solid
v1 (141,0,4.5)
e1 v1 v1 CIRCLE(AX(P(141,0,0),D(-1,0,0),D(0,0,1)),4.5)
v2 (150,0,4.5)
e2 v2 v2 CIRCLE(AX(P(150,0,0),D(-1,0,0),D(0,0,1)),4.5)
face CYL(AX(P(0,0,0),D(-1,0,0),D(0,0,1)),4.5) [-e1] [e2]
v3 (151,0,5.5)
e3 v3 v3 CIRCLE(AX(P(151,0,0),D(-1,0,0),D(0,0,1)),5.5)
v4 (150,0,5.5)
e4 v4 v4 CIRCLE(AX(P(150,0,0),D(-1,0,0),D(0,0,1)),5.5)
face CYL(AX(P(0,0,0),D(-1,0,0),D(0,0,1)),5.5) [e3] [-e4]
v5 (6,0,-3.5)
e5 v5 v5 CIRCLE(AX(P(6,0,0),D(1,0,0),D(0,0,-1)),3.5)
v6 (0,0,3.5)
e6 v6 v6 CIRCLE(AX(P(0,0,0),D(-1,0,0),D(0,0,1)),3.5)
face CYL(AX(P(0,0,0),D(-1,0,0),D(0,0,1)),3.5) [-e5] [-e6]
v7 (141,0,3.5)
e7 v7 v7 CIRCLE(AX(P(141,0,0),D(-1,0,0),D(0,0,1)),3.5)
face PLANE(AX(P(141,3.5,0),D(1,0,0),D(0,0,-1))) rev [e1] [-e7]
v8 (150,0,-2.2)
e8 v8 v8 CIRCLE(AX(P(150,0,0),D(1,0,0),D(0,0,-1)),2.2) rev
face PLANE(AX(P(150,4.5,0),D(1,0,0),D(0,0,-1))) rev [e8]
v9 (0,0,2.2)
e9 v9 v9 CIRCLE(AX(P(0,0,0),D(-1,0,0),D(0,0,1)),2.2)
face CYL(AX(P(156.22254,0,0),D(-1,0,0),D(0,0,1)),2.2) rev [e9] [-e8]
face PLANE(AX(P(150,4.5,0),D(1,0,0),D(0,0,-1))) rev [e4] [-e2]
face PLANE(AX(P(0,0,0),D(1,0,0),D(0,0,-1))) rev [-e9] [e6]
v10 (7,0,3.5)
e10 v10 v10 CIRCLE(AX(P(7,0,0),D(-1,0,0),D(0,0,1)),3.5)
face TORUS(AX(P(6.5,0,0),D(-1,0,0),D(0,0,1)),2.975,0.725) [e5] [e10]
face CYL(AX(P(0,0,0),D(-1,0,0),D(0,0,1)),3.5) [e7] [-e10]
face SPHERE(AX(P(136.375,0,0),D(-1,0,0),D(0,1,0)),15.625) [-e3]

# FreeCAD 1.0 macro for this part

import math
import FreeCAD as App
import Part
import Sketcher
from FreeCAD import Vector
Q = App.Units.Quantity

doc = App.newDocument("Part")
body = doc.addObject("PartDesign::Body", "Body")

# Sketch on XY plane
sketch1 = body.newObject("Sketcher::SketchObject", "Sketch")
sketch1.AttachmentSupport = (doc.getObject("XY_Plane"), [""])
sketch1.MapMode = "FlatFace"
sketch1.addGeometry(Part.LineSegment(Vector(0, 0, 0), Vector(152, 0, 0)), False)
sketch1.addGeometry(Part.ArcOfCircle(Part.Circle(Vector(136.4, 0, 0), Vector(0, 0, 1), 15.6), math.radians(0), math.radians(21)), False)
sketch1.addGeometry(Part.LineSegment(Vector(151, 5.5, 0), Vector(150, 5.5, 0)), False)
sketch1.addGeometry(Part.LineSegment(Vector(150, 5.5, 0), Vector(150, 4.5, 0)), False)
sketch1.addGeometry(Part.LineSegment(Vector(150, 4.5, 0), Vector(141, 4.5, 0)), False)
sketch1.addGeometry(Part.LineSegment(Vector(141, 4.5, 0), Vector(141, 3.5, 0)), False)
sketch1.addGeometry(Part.LineSegment(Vector(141, 3.5, 0), Vector(0, 3.5, 0)), False)
sketch1.addGeometry(Part.LineSegment(Vector(0, 3.5, 0), Vector(0, 0, 0)), False)
sketch1.addConstraint(Sketcher.Constraint("Coincident", 0, 2, 1, 1))
sketch1.addConstraint(Sketcher.Constraint("Coincident", 1, 2, 2, 1))
sketch1.addConstraint(Sketcher.Constraint("Coincident", 2, 2, 3, 1))
sketch1.addConstraint(Sketcher.Constraint("Coincident", 3, 2, 4, 1))
sketch1.addConstraint(Sketcher.Constraint("Coincident", 4, 2, 5, 1))
sketch1.addConstraint(Sketcher.Constraint("Coincident", 5, 2, 6, 1))
sketch1.addConstraint(Sketcher.Constraint("Coincident", 6, 2, 7, 1))
sketch1.addConstraint(Sketcher.Constraint("Coincident", 7, 2, 0, 1))
sketch1.addConstraint(Sketcher.Constraint("Horizontal", 0))
sketch1.addConstraint(Sketcher.Constraint("Horizontal", 2))
sketch1.addConstraint(Sketcher.Constraint("Vertical", 3))
sketch1.addConstraint(Sketcher.Constraint("Horizontal", 4))
sketch1.addConstraint(Sketcher.Constraint("Vertical", 5))
sketch1.addConstraint(Sketcher.Constraint("Horizontal", 6))
sketch1.addConstraint(Sketcher.Constraint("Vertical", 7))
sketch1.addConstraint(Sketcher.Constraint("Coincident", 7, 2, -1, 1))
sketch1.addConstraint(Sketcher.Constraint("PointOnObject", 1, 3, -1))
sketch1.addConstraint(Sketcher.Constraint("Equal", 2, 3))
sketch1.addConstraint(Sketcher.Constraint("Equal", 3, 5))
sketch1.addConstraint(Sketcher.Constraint("DistanceX", 0, 1, 0, 2, Q("152 mm")))
sketch1.addConstraint(Sketcher.Constraint("DistanceX", 2, 2, 2, 1, Q("1 mm")))
sketch1.addConstraint(Sketcher.Constraint("DistanceX", 4, 2, 4, 1, Q("9 mm")))
sketch1.addConstraint(Sketcher.Constraint("DistanceX", 6, 2, 6, 1, Q("141 mm")))
sketch1.addConstraint(Sketcher.Constraint("DistanceY", 7, 2, 7, 1, Q("3.5 mm")))
revolution = body.newObject("PartDesign::Revolution", "Revolution")
revolution.Profile = sketch1
revolution.ReferenceAxis = (sketch1, ["H_Axis"])
revolution.Angle = 360

# Sketch on XY plane
sketch2 = body.newObject("Sketcher::SketchObject", "Sketch001")
sketch2.AttachmentSupport = (doc.getObject("XY_Plane"), [""])
sketch2.MapMode = "FlatFace"
sketch2.addGeometry(Part.LineSegment(Vector(6, 0, 0), Vector(7, 0, 0)), False)
sketch2.addGeometry(Part.LineSegment(Vector(7, 0, 0), Vector(7, 3.5, 0)), False)
sketch2.addGeometry(Part.ArcOfCircle(Part.Circle(Vector(6.5, 3, 0), Vector(0, 0, 1), 0.7), math.radians(46), math.radians(134)), False)
sketch2.addGeometry(Part.LineSegment(Vector(6, 3.5, 0), Vector(6, 0, 0)), False)
sketch2.addConstraint(Sketcher.Constraint("Coincident", 0, 2, 1, 1))
sketch2.addConstraint(Sketcher.Constraint("Coincident", 1, 2, 2, 1))
sketch2.addConstraint(Sketcher.Constraint("Coincident", 2, 2, 3, 1))
sketch2.addConstraint(Sketcher.Constraint("Coincident", 3, 2, 0, 1))
sketch2.addConstraint(Sketcher.Constraint("Horizontal", 0))
sketch2.addConstraint(Sketcher.Constraint("Vertical", 1))
sketch2.addConstraint(Sketcher.Constraint("Vertical", 3))
sketch2.addConstraint(Sketcher.Constraint("PointOnObject", 0, 2, -1))
sketch2.addConstraint(Sketcher.Constraint("Horizontal", 1, 2, 2, 2))
sketch2.addConstraint(Sketcher.Constraint("DistanceX", 0, 1, 0, 2, Q("1 mm")))
sketch2.addConstraint(Sketcher.Constraint("DistanceY", 1, 1, 1, 2, Q("3.5 mm")))
sketch2.addConstraint(Sketcher.Constraint("DistanceX", -1, 1, 0, 2, Q("7 mm")))
sketch2.addConstraint(Sketcher.Constraint("Radius", 2, Q("0.725 mm")))
revolution2 = body.newObject("PartDesign::Revolution", "Revolution001")
revolution2.Profile = sketch2
revolution2.ReferenceAxis = (sketch2, ["H_Axis"])
revolution2.Angle = 360

# Sketch on YZ plane
sketch3 = body.newObject("Sketcher::SketchObject", "Sketch002")
sketch3.AttachmentSupport = (doc.getObject("YZ_Plane"), [""])
sketch3.MapMode = "FlatFace"
sketch3.addGeometry(Part.Circle(Vector(0, 0, 0), Vector(0, 0, 1), 2.2), False)
sketch3.addConstraint(Sketcher.Constraint("Coincident", 0, 3, -1, 1))
sketch3.addConstraint(Sketcher.Constraint("Diameter", 0, Q("4.4 mm")))
pocket1 = body.newObject("PartDesign::Pocket", "Pocket")
pocket1.Profile = sketch3
pocket1.Length = 150
pocket1.Reversed = True

doc.recompute()
